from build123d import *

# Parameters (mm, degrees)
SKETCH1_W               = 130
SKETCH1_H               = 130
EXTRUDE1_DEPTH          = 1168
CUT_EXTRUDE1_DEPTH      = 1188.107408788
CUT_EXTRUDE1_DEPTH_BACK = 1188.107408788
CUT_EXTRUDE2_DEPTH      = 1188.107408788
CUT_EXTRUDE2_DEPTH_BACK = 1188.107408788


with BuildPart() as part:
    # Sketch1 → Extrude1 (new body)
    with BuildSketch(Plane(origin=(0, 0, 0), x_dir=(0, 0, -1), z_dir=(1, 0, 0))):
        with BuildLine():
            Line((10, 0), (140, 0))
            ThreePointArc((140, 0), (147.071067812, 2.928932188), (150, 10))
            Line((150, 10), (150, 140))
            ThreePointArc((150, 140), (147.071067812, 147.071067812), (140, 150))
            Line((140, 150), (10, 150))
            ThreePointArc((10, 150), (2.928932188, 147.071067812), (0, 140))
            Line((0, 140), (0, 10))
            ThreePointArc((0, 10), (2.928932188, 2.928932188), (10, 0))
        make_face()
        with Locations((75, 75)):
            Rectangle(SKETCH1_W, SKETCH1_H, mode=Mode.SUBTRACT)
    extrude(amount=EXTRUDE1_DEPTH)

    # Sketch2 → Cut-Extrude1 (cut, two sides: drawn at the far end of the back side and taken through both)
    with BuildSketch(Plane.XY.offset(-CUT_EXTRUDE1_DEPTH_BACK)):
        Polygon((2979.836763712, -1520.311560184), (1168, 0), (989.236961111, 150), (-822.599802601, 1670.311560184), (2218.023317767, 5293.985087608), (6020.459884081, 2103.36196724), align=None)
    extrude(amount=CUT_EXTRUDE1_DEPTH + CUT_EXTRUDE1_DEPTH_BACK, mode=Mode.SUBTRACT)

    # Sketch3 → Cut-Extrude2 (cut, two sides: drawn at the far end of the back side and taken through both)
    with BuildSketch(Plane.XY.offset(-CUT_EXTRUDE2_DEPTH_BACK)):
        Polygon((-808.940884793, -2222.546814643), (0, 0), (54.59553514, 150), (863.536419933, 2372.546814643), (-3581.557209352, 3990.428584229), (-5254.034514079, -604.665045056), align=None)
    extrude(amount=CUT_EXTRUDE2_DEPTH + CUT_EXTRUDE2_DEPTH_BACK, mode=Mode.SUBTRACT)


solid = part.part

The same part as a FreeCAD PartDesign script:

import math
import FreeCAD as App
import Part
import Sketcher

V = App.Vector
Q = App.Units.Quantity

doc = App.newDocument("Part")
body = doc.addObject("PartDesign::Body", "Body")

sketch1 = body.newObject("Sketcher::SketchObject", "Sketch")
sketch1.AttachmentSupport = (doc.getObject("YZ_Plane"), [""])
sketch1.MapMode = "FlatFace"
sketch1.addGeometry(Part.LineSegment(V(0, -10, 0), V(0, -140, 0)), False)
sketch1.addGeometry(Part.ArcOfCircle(Part.Circle(V(10, -140, 0), V(0, 0, 1), 10), math.radians(180), math.radians(270)), False)
sketch1.addGeometry(Part.LineSegment(V(10, -150, 0), V(140, -150, 0)), False)
sketch1.addGeometry(Part.ArcOfCircle(Part.Circle(V(140, -140, 0), V(0, 0, 1), 10), math.radians(-90), math.radians(0)), False)
sketch1.addGeometry(Part.LineSegment(V(150, -140, 0), V(150, -10, 0)), False)
sketch1.addGeometry(Part.ArcOfCircle(Part.Circle(V(140, -10, 0), V(0, 0, 1), 10), math.radians(0), math.radians(90)), False)
sketch1.addGeometry(Part.LineSegment(V(140, 0, 0), V(10, 0, 0)), False)
sketch1.addGeometry(Part.ArcOfCircle(Part.Circle(V(10, -10, 0), V(0, 0, 1), 10), math.radians(90), math.radians(180)), False)
sketch1.addGeometry(Part.LineSegment(V(10, -140, 0), V(10, -10, 0)), False)
sketch1.addGeometry(Part.LineSegment(V(10, -10, 0), V(140, -10, 0)), False)
sketch1.addGeometry(Part.LineSegment(V(140, -10, 0), V(140, -140, 0)), False)
sketch1.addGeometry(Part.LineSegment(V(140, -140, 0), V(10, -140, 0)), False)
sketch1.addConstraint(Sketcher.Constraint("Tangent", 0, 2, 1, 1))
sketch1.addConstraint(Sketcher.Constraint("Tangent", 1, 2, 2, 1))
sketch1.addConstraint(Sketcher.Constraint("Tangent", 2, 2, 3, 1))
sketch1.addConstraint(Sketcher.Constraint("Tangent", 3, 2, 4, 1))
sketch1.addConstraint(Sketcher.Constraint("Tangent", 4, 2, 5, 1))
sketch1.addConstraint(Sketcher.Constraint("Tangent", 5, 2, 6, 1))
sketch1.addConstraint(Sketcher.Constraint("Tangent", 6, 2, 7, 1))
sketch1.addConstraint(Sketcher.Constraint("Tangent", 7, 2, 0, 1))
sketch1.addConstraint(Sketcher.Constraint("Coincident", 8, 2, 9, 1))
sketch1.addConstraint(Sketcher.Constraint("Coincident", 9, 2, 10, 1))
sketch1.addConstraint(Sketcher.Constraint("Coincident", 10, 2, 11, 1))
sketch1.addConstraint(Sketcher.Constraint("Coincident", 11, 2, 8, 1))
sketch1.addConstraint(Sketcher.Constraint("Vertical", 0))
sketch1.addConstraint(Sketcher.Constraint("Horizontal", 2))
sketch1.addConstraint(Sketcher.Constraint("Vertical", 4))
sketch1.addConstraint(Sketcher.Constraint("Horizontal", 6))
sketch1.addConstraint(Sketcher.Constraint("Vertical", 8))
sketch1.addConstraint(Sketcher.Constraint("Horizontal", 9))
sketch1.addConstraint(Sketcher.Constraint("Vertical", 10))
sketch1.addConstraint(Sketcher.Constraint("Horizontal", 11))
sketch1.addConstraint(Sketcher.Constraint("Coincident", 8, 2, 7, 3))
sketch1.addConstraint(Sketcher.Constraint("Coincident", 9, 2, 5, 3))
sketch1.addConstraint(Sketcher.Constraint("Coincident", 10, 2, 3, 3))
sketch1.addConstraint(Sketcher.Constraint("Equal", 1, 3))
sketch1.addConstraint(Sketcher.Constraint("PointOnObject", 0, 2, -2))
sketch1.addConstraint(Sketcher.Constraint("PointOnObject", 5, 2, -1))
sketch1.addConstraint(Sketcher.Constraint("Equal", 11, 0))
sketch1.addConstraint(Sketcher.Constraint("Radius", 1, Q("10 mm")))
sketch1.addConstraint(Sketcher.Constraint("DistanceX", 2, 1, 2, 2, Q("130 mm")))
pad1 = body.newObject("PartDesign::Pad", "Pad")
pad1.Profile = sketch1
pad1.Length = 1168

sketch2 = body.newObject("Sketcher::SketchObject", "Sketch001")
sketch2.AttachmentSupport = (doc.getObject("XY_Plane"), [""])
sketch2.MapMode = "FlatFace"
sketch2.addGeometry(Part.LineSegment(V(-823, 1670, 0), V(2980, -1520, 0)), False)
sketch2.addGeometry(Part.LineSegment(V(2980, -1520, 0), V(6020, 2103, 0)), False)
sketch2.addGeometry(Part.LineSegment(V(6020, 2103, 0), V(2218, 5294, 0)), False)
sketch2.addGeometry(Part.LineSegment(V(2218, 5294, 0), V(-823, 1670, 0)), False)
sketch2.addConstraint(Sketcher.Constraint("Coincident", 0, 2, 1, 1))
sketch2.addConstraint(Sketcher.Constraint("Coincident", 1, 2, 2, 1))
sketch2.addConstraint(Sketcher.Constraint("Coincident", 2, 2, 3, 1))
sketch2.addConstraint(Sketcher.Constraint("Coincident", 3, 2, 0, 1))
sketch2.addConstraint(Sketcher.Constraint("Perpendicular", 0, 1))
sketch2.addConstraint(Sketcher.Constraint("Perpendicular", 1, 2))
sketch2.addConstraint(Sketcher.Constraint("Perpendicular", 2, 3))
sketch2.addConstraint(Sketcher.Constraint("Angle", 0, Q("-40 deg")))
sketch2.addConstraint(Sketcher.Constraint("Distance", 0, Q("4963.728411 mm")))
sketch2.addConstraint(Sketcher.Constraint("DistanceY", 0, 2, -1, 1, Q("1520.31156 mm")))
sketch2.addConstraint(Sketcher.Constraint("DistanceX", 0, 2, 1, 2, Q("3040.62312 mm")))
sketch2.addConstraint(Sketcher.Constraint("DistanceX", -1, 1, 0, 2, Q("2979.836764 mm")))
pocket1 = body.newObject("PartDesign::Pocket", "Pocket")
pocket1.Profile = sketch2
pocket1.Type = "ThroughAll"
pocket1.Midplane = True

sketch3 = body.newObject("Sketcher::SketchObject", "Sketch002")
sketch3.AttachmentSupport = (doc.getObject("XY_Plane"), [""])
sketch3.MapMode = "FlatFace"
sketch3.addGeometry(Part.LineSegment(V(-809, -2223, 0), V(864, 2373, 0)), False)
sketch3.addGeometry(Part.LineSegment(V(864, 2373, 0), V(-3582, 3990, 0)), False)
sketch3.addGeometry(Part.LineSegment(V(-3582, 3990, 0), V(-5254, -605, 0)), False)
sketch3.addGeometry(Part.LineSegment(V(-5254, -605, 0), V(-809, -2223, 0)), False)
sketch3.addConstraint(Sketcher.Constraint("Coincident", 0, 2, 1, 1))
sketch3.addConstraint(Sketcher.Constraint("Coincident", 1, 2, 2, 1))
sketch3.addConstraint(Sketcher.Constraint("Coincident", 2, 2, 3, 1))
sketch3.addConstraint(Sketcher.Constraint("Coincident", 3, 2, 0, 1))
sketch3.addConstraint(Sketcher.Constraint("Perpendicular", 0, 1))
sketch3.addConstraint(Sketcher.Constraint("Perpendicular", 1, 2))
sketch3.addConstraint(Sketcher.Constraint("Perpendicular", 2, 3))
sketch3.addConstraint(Sketcher.Constraint("Angle", 0, Q("70 deg")))
sketch3.addConstraint(Sketcher.Constraint("DistanceY", 3, 2, 1, 2, Q("6212.975399 mm")))
sketch3.addConstraint(Sketcher.Constraint("DistanceX", -1, 1, 0, 2, Q("863.53642 mm")))
sketch3.addConstraint(Sketcher.Constraint("DistanceX", 1, 2, -1, 1, Q("3581.557209 mm")))
sketch3.addConstraint(Sketcher.Constraint("DistanceY", -1, 1, 0, 2, Q("2372.546815 mm")))
pocket2 = body.newObject("PartDesign::Pocket", "Pocket001")
pocket2.Profile = sketch3
pocket2.Type = "ThroughAll"
pocket2.Midplane = True

doc.recompute()
